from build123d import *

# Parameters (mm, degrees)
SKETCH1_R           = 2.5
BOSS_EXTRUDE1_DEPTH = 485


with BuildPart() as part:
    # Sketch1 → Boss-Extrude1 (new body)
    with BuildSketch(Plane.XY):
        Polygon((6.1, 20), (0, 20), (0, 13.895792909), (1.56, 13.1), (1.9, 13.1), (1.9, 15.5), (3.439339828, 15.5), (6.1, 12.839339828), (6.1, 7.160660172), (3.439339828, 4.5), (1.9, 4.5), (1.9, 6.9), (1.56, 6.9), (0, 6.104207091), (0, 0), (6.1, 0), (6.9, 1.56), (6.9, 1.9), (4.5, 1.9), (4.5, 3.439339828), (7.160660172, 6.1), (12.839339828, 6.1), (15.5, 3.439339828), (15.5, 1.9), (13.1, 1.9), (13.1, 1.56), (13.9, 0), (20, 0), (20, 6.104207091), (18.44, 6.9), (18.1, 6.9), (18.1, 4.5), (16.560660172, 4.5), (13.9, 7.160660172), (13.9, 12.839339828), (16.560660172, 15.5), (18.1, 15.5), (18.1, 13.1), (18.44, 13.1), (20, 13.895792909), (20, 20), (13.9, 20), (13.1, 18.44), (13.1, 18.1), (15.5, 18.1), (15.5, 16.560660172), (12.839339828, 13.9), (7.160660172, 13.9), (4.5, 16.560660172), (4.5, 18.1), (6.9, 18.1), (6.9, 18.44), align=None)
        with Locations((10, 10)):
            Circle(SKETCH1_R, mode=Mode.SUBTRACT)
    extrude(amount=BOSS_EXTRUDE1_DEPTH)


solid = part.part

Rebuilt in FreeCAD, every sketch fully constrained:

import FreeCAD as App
import Part
import Sketcher
Q = App.Units.Quantity

doc = App.newDocument("Part")
body = doc.addObject("PartDesign::Body", "Body")

sketch1 = doc.addObject("Sketcher::SketchObject", "Sketch")
body.addObject(sketch1)
sketch1.AttachmentSupport = (doc.XY_Plane, [""])
sketch1.MapMode = "FlatFace"
sketch1.addGeometry([
    Part.LineSegment(App.Vector(6.1, 20, 0), App.Vector(0, 20, 0)),
    Part.LineSegment(App.Vector(0, 20, 0), App.Vector(0, 13.895793, 0)),
    Part.LineSegment(App.Vector(0, 13.895793, 0), App.Vector(1.56, 13.1, 0)),
    Part.LineSegment(App.Vector(1.56, 13.1, 0), App.Vector(1.9, 13.1, 0)),
    Part.LineSegment(App.Vector(1.9, 13.1, 0), App.Vector(1.9, 15.5, 0)),
    Part.LineSegment(App.Vector(1.9, 15.5, 0), App.Vector(3.43934, 15.5, 0)),
    Part.LineSegment(App.Vector(3.43934, 15.5, 0), App.Vector(6.1, 12.83934, 0)),
    Part.LineSegment(App.Vector(6.1, 12.83934, 0), App.Vector(6.1, 7.16066, 0)),
    Part.LineSegment(App.Vector(6.1, 7.16066, 0), App.Vector(3.43934, 4.5, 0)),
    Part.LineSegment(App.Vector(3.43934, 4.5, 0), App.Vector(1.9, 4.5, 0)),
    Part.LineSegment(App.Vector(1.9, 4.5, 0), App.Vector(1.9, 6.9, 0)),
    Part.LineSegment(App.Vector(1.9, 6.9, 0), App.Vector(1.56, 6.9, 0)),
    Part.LineSegment(App.Vector(1.56, 6.9, 0), App.Vector(0, 6.104207, 0)),
    Part.LineSegment(App.Vector(0, 6.104207, 0), App.Vector(0, 0, 0)),
    Part.LineSegment(App.Vector(0, 0, 0), App.Vector(6.1, 0, 0)),
    Part.LineSegment(App.Vector(6.1, 0, 0), App.Vector(6.9, 1.56, 0)),
    Part.LineSegment(App.Vector(6.9, 1.56, 0), App.Vector(6.9, 1.9, 0)),
    Part.LineSegment(App.Vector(6.9, 1.9, 0), App.Vector(4.5, 1.9, 0)),
    Part.LineSegment(App.Vector(4.5, 1.9, 0), App.Vector(4.5, 3.43934, 0)),
    Part.LineSegment(App.Vector(4.5, 3.43934, 0), App.Vector(7.16066, 6.1, 0)),
    Part.LineSegment(App.Vector(7.16066, 6.1, 0), App.Vector(12.83934, 6.1, 0)),
    Part.LineSegment(App.Vector(12.83934, 6.1, 0), App.Vector(15.5, 3.43934, 0)),
    Part.LineSegment(App.Vector(15.5, 3.43934, 0), App.Vector(15.5, 1.9, 0)),
    Part.LineSegment(App.Vector(15.5, 1.9, 0), App.Vector(13.1, 1.9, 0)),
    Part.LineSegment(App.Vector(13.1, 1.9, 0), App.Vector(13.1, 1.56, 0)),
    Part.LineSegment(App.Vector(13.1, 1.56, 0), App.Vector(13.9, 0, 0)),
    Part.LineSegment(App.Vector(13.9, 0, 0), App.Vector(20, 0, 0)),
    Part.LineSegment(App.Vector(20, 0, 0), App.Vector(20, 6.104207, 0)),
    Part.LineSegment(App.Vector(20, 6.104207, 0), App.Vector(18.44, 6.9, 0)),
    Part.LineSegment(App.Vector(18.44, 6.9, 0), App.Vector(18.1, 6.9, 0)),
    Part.LineSegment(App.Vector(18.1, 6.9, 0), App.Vector(18.1, 4.5, 0)),
    Part.LineSegment(App.Vector(18.1, 4.5, 0), App.Vector(16.56066, 4.5, 0)),
    Part.LineSegment(App.Vector(16.56066, 4.5, 0), App.Vector(13.9, 7.16066, 0)),
    Part.LineSegment(App.Vector(13.9, 7.16066, 0), App.Vector(13.9, 12.83934, 0)),
    Part.LineSegment(App.Vector(13.9, 12.83934, 0), App.Vector(16.56066, 15.5, 0)),
    Part.LineSegment(App.Vector(16.56066, 15.5, 0), App.Vector(18.1, 15.5, 0)),
    Part.LineSegment(App.Vector(18.1, 15.5, 0), App.Vector(18.1, 13.1, 0)),
    Part.LineSegment(App.Vector(18.1, 13.1, 0), App.Vector(18.44, 13.1, 0)),
    Part.LineSegment(App.Vector(18.44, 13.1, 0), App.Vector(20, 13.895793, 0)),
    Part.LineSegment(App.Vector(20, 13.895793, 0), App.Vector(20, 20, 0)),
    Part.LineSegment(App.Vector(20, 20, 0), App.Vector(13.9, 20, 0)),
    Part.LineSegment(App.Vector(13.9, 20, 0), App.Vector(13.1, 18.44, 0)),
    Part.LineSegment(App.Vector(13.1, 18.44, 0), App.Vector(13.1, 18.1, 0)),
    Part.LineSegment(App.Vector(13.1, 18.1, 0), App.Vector(15.5, 18.1, 0)),
    Part.LineSegment(App.Vector(15.5, 18.1, 0), App.Vector(15.5, 16.56066, 0)),
    Part.LineSegment(App.Vector(15.5, 16.56066, 0), App.Vector(12.83934, 13.9, 0)),
    Part.LineSegment(App.Vector(12.83934, 13.9, 0), App.Vector(7.16066, 13.9, 0)),
    Part.LineSegment(App.Vector(7.16066, 13.9, 0), App.Vector(4.5, 16.56066, 0)),
    Part.LineSegment(App.Vector(4.5, 16.56066, 0), App.Vector(4.5, 18.1, 0)),
    Part.LineSegment(App.Vector(4.5, 18.1, 0), App.Vector(6.9, 18.1, 0)),
    Part.LineSegment(App.Vector(6.9, 18.1, 0), App.Vector(6.9, 18.44, 0)),
    Part.LineSegment(App.Vector(6.9, 18.44, 0), App.Vector(6.1, 20, 0)),
    Part.Circle(App.Vector(10, 10, 0), App.Vector(0, 0, 1), 2.5),
], False)
sketch1.addConstraint([
    Sketcher.Constraint("Coincident", 0, 2, 1, 1),
    Sketcher.Constraint("Coincident", 1, 2, 2, 1),
    Sketcher.Constraint("Coincident", 2, 2, 3, 1),
    Sketcher.Constraint("Coincident", 3, 2, 4, 1),
    Sketcher.Constraint("Coincident", 4, 2, 5, 1),
    Sketcher.Constraint("Coincident", 5, 2, 6, 1),
    Sketcher.Constraint("Coincident", 6, 2, 7, 1),
    Sketcher.Constraint("Coincident", 7, 2, 8, 1),
    Sketcher.Constraint("Coincident", 8, 2, 9, 1),
    Sketcher.Constraint("Coincident", 9, 2, 10, 1),
    Sketcher.Constraint("Coincident", 10, 2, 11, 1),
    Sketcher.Constraint("Coincident", 11, 2, 12, 1),
    Sketcher.Constraint("Coincident", 12, 2, 13, 1),
    Sketcher.Constraint("Coincident", 13, 2, 14, 1),
    Sketcher.Constraint("Coincident", 14, 2, 15, 1),
    Sketcher.Constraint("Coincident", 15, 2, 16, 1),
    Sketcher.Constraint("Coincident", 16, 2, 17, 1),
    Sketcher.Constraint("Coincident", 17, 2, 18, 1),
    Sketcher.Constraint("Coincident", 18, 2, 19, 1),
    Sketcher.Constraint("Coincident", 19, 2, 20, 1),
    Sketcher.Constraint("Coincident", 20, 2, 21, 1),
    Sketcher.Constraint("Coincident", 21, 2, 22, 1),
    Sketcher.Constraint("Coincident", 22, 2, 23, 1),
    Sketcher.Constraint("Coincident", 23, 2, 24, 1),
    Sketcher.Constraint("Coincident", 24, 2, 25, 1),
    Sketcher.Constraint("Coincident", 25, 2, 26, 1),
    Sketcher.Constraint("Coincident", 26, 2, 27, 1),
    Sketcher.Constraint("Coincident", 27, 2, 28, 1),
    Sketcher.Constraint("Coincident", 28, 2, 29, 1),
    Sketcher.Constraint("Coincident", 29, 2, 30, 1),
    Sketcher.Constraint("Coincident", 30, 2, 31, 1),
    Sketcher.Constraint("Coincident", 31, 2, 32, 1),
    Sketcher.Constraint("Coincident", 32, 2, 33, 1),
    Sketcher.Constraint("Coincident", 33, 2, 34, 1),
    Sketcher.Constraint("Coincident", 34, 2, 35, 1),
    Sketcher.Constraint("Coincident", 35, 2, 36, 1),
    Sketcher.Constraint("Coincident", 36, 2, 37, 1),
    Sketcher.Constraint("Coincident", 37, 2, 38, 1),
    Sketcher.Constraint("Coincident", 38, 2, 39, 1),
    Sketcher.Constraint("Coincident", 39, 2, 40, 1),
    Sketcher.Constraint("Coincident", 40, 2, 41, 1),
    Sketcher.Constraint("Coincident", 41, 2, 42, 1),
    Sketcher.Constraint("Coincident", 42, 2, 43, 1),
    Sketcher.Constraint("Coincident", 43, 2, 44, 1),
    Sketcher.Constraint("Coincident", 44, 2, 45, 1),
    Sketcher.Constraint("Coincident", 45, 2, 46, 1),
    Sketcher.Constraint("Coincident", 46, 2, 47, 1),
    Sketcher.Constraint("Coincident", 47, 2, 48, 1),
    Sketcher.Constraint("Coincident", 48, 2, 49, 1),
    Sketcher.Constraint("Coincident", 49, 2, 50, 1),
    Sketcher.Constraint("Coincident", 50, 2, 51, 1),
    Sketcher.Constraint("Coincident", 51, 2, 0, 1),
    Sketcher.Constraint("Horizontal", 0),
    Sketcher.Constraint("Vertical", 1),
    Sketcher.Constraint("Horizontal", 3),
    Sketcher.Constraint("Vertical", 4),
    Sketcher.Constraint("Horizontal", 5),
    Sketcher.Constraint("Vertical", 7),
    Sketcher.Constraint("Horizontal", 9),
    Sketcher.Constraint("Vertical", 10),
    Sketcher.Constraint("Horizontal", 11),
    Sketcher.Constraint("Vertical", 13),
    Sketcher.Constraint("Horizontal", 14),
    Sketcher.Constraint("Vertical", 16),
    Sketcher.Constraint("Horizontal", 17),
    Sketcher.Constraint("Vertical", 18),
    Sketcher.Constraint("Horizontal", 20),
    Sketcher.Constraint("Vertical", 22),
    Sketcher.Constraint("Horizontal", 23),
    Sketcher.Constraint("Vertical", 24),
    Sketcher.Constraint("Horizontal", 26),
    Sketcher.Constraint("Vertical", 27),
    Sketcher.Constraint("Horizontal", 29),
    Sketcher.Constraint("Vertical", 30),
    Sketcher.Constraint("Horizontal", 31),
    Sketcher.Constraint("Vertical", 33),
    Sketcher.Constraint("Horizontal", 35),
    Sketcher.Constraint("Vertical", 36),
    Sketcher.Constraint("Horizontal", 37),
    Sketcher.Constraint("Vertical", 39),
    Sketcher.Constraint("Horizontal", 40),
    Sketcher.Constraint("Vertical", 42),
    Sketcher.Constraint("Horizontal", 43),
    Sketcher.Constraint("Vertical", 44),
    Sketcher.Constraint("Horizontal", 46),
    Sketcher.Constraint("Vertical", 48),
    Sketcher.Constraint("Horizontal", 49),
    Sketcher.Constraint("Vertical", 50),
    Sketcher.Constraint("Coincident", 13, 2, -1, 1),
    Sketcher.Constraint("PointOnObject", 0, 2, -2),
    Sketcher.Constraint("PointOnObject", 25, 2, -1),
    Sketcher.Constraint("Perpendicular", 6, 8),
    Sketcher.Constraint("Parallel", 8, 19),
    Sketcher.Constraint("Perpendicular", 19, 21),
    Sketcher.Constraint("Parallel", 2, 28),
    Sketcher.Constraint("Parallel", 21, 32),
    Sketcher.Constraint("Perpendicular", 32, 34),
    Sketcher.Constraint("Parallel", 12, 38),
    Sketcher.Constraint("Parallel", 15, 41),
    Sketcher.Constraint("Parallel", 34, 45),
    Sketcher.Constraint("Perpendicular", 45, 47),
    Sketcher.Constraint("Parallel", 25, 51),
    Sketcher.Constraint("Horizontal", 18, 2, 21, 2),
    Sketcher.Constraint("Horizontal", 17, 2, 22, 2),
    Sketcher.Constraint("Horizontal", 15, 2, 24, 2),
    Sketcher.Constraint("Horizontal", 12, 2, 27, 2),
    Sketcher.Constraint("Horizontal", 11, 2, 28, 2),
    Sketcher.Constraint("Horizontal", 9, 2, 30, 2),
    Sketcher.Constraint("Horizontal", 7, 2, 32, 2),
    Sketcher.Constraint("Horizontal", 6, 2, 33, 2),
    Sketcher.Constraint("Horizontal", 5, 2, 34, 2),
    Sketcher.Constraint("Horizontal", 3, 2, 36, 2),
    Sketcher.Constraint("Horizontal", 1, 2, 38, 2),
    Sketcher.Constraint("Horizontal", 0, 2, 39, 2),
    Sketcher.Constraint("Horizontal", 44, 2, 47, 2),
    Sketcher.Constraint("Horizontal", 43, 2, 48, 2),
    Sketcher.Constraint("Horizontal", 41, 2, 50, 2),
    Sketcher.Constraint("Vertical", 5, 2, 8, 2),
    Sketcher.Constraint("Vertical", 4, 2, 9, 2),
    Sketcher.Constraint("Vertical", 2, 2, 11, 2),
    Sketcher.Constraint("Vertical", 7, 2, 14, 2),
    Sketcher.Constraint("Vertical", 25, 2, 32, 2),
    Sketcher.Constraint("Vertical", 31, 2, 34, 2),
    Sketcher.Constraint("Vertical", 30, 2, 35, 2),
    Sketcher.Constraint("Vertical", 28, 2, 37, 2),
    Sketcher.Constraint("Vertical", 27, 2, 38, 2),
    Sketcher.Constraint("Vertical", 33, 2, 40, 2),
    Sketcher.Constraint("Vertical", 24, 2, 41, 2),
    Sketcher.Constraint("Vertical", 22, 2, 43, 2),
    Sketcher.Constraint("Vertical", 20, 2, 45, 2),
    Sketcher.Constraint("Vertical", 19, 2, 46, 2),
    Sketcher.Constraint("Vertical", 16, 2, 49, 2),
    Sketcher.Constraint("Vertical", 14, 2, 51, 2),
    Sketcher.Constraint("Equal", 17, 23),
    Sketcher.Constraint("Equal", 14, 26),
    Sketcher.Constraint("Equal", 11, 29),
    Sketcher.Constraint("Equal", 49, 4),
    Sketcher.Constraint("Equal", 46, 7),
    Sketcher.Constraint("Equal", 4, 10),
    Sketcher.Constraint("Equal", 1, 13),
    Sketcher.Constraint("Equal", 37, 16),
    Sketcher.Constraint("Equal", 35, 18),
    Sketcher.Constraint("Equal", 24, 42),
    Sketcher.Constraint("Equal", 22, 44),
    Sketcher.Constraint("Equal", 8, 19),
    Sketcher.Constraint("Diameter", 52, Q("5 mm")),
    Sketcher.Constraint("DistanceX", 0, 2, 0, 1, Q("6.1 mm")),
    Sketcher.Constraint("DistanceX", 17, 2, 17, 1, Q("2.4 mm")),
    Sketcher.Constraint("DistanceX", -1, 1, 52, 3, Q("10 mm")),
    Sketcher.Constraint("DistanceY", -1, 1, 52, 3, Q("10 mm")),
    Sketcher.Constraint("DistanceY", -1, 1, 0, 2, Q("20 mm")),
    Sketcher.Constraint("DistanceX", -1, 1, 26, 2, Q("20 mm")),
    Sketcher.Constraint("DistanceX", 9, 2, 15, 2, Q("5 mm")),
    Sketcher.Constraint("DistanceY", 22, 2, 28, 2, Q("5 mm")),
    Sketcher.Constraint("DistanceX", 3, 1, 3, 2, Q("0.34 mm")),
    Sketcher.Constraint("DistanceY", -1, 1, 2, 2, Q("13.1 mm")),
    Sketcher.Constraint("DistanceX", 5, 1, 5, 2, Q("1.53934 mm")),
    Sketcher.Constraint("DistanceY", 1, 2, 1, 1, Q("6.104207 mm")),
])
pad1 = doc.addObject("PartDesign::Pad", "Pad")
body.addObject(pad1)
pad1.Profile = sketch1
pad1.Length = 485

doc.recompute()
